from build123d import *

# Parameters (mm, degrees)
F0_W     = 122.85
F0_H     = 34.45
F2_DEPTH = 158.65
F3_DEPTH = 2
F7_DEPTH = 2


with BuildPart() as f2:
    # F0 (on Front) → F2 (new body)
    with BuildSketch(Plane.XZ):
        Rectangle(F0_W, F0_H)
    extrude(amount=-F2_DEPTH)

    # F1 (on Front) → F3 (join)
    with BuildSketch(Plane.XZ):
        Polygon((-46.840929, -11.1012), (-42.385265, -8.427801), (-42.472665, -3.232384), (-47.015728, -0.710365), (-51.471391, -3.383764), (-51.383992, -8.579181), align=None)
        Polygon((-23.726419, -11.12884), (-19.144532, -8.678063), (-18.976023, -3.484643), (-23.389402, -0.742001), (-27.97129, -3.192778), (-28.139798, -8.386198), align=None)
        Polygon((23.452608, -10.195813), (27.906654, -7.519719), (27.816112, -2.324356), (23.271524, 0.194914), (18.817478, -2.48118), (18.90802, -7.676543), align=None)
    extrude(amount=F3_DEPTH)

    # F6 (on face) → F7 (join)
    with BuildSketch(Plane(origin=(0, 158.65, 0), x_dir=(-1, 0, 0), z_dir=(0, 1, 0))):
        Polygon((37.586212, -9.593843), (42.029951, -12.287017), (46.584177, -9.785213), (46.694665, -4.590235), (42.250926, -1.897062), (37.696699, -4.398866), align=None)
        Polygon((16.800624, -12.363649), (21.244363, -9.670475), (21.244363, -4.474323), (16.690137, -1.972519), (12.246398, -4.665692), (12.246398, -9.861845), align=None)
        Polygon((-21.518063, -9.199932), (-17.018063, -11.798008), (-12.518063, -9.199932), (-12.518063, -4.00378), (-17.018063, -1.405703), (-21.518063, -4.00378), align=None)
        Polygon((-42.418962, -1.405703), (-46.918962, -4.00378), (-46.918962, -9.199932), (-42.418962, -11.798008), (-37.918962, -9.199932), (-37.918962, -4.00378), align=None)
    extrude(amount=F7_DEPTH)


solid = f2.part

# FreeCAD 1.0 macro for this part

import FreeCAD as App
import Part
import Sketcher

V = App.Vector
Q = App.Units.Quantity

doc = App.newDocument("Part")
params = doc.addObject("Spreadsheet::Sheet", "Params")
for row, (alias, value) in enumerate([
    ("sketch1_width", "122.85 mm"),
    ("sketch1_height", "34.45 mm"),
    ("pad1_length", "158.65 mm"),
    ("pad2_length", "2 mm"),
    ("pad3_length", "2 mm"),
], start=1):
    params.set(f"A{row}", alias)
    params.set(f"B{row}", "=" + value)
    params.setAlias(f"B{row}", alias)

body = doc.addObject("PartDesign::Body", "Body")

sketch1 = body.newObject("Sketcher::SketchObject", "Sketch")
sketch1.AttachmentSupport = (doc.getObject("XZ_Plane"), [""])
sketch1.MapMode = "FlatFace"
sketch1.addGeometry(Part.LineSegment(V(-61, 17, 0), V(-61, -17, 0)), False)
sketch1.addGeometry(Part.LineSegment(V(-61, -17, 0), V(61, -17, 0)), False)
sketch1.addGeometry(Part.LineSegment(V(61, -17, 0), V(61, 17, 0)), False)
sketch1.addGeometry(Part.LineSegment(V(61, 17, 0), V(-61, 17, 0)), False)
sketch1.addConstraint(Sketcher.Constraint("Coincident", 0, 2, 1, 1))
sketch1.addConstraint(Sketcher.Constraint("Coincident", 1, 2, 2, 1))
sketch1.addConstraint(Sketcher.Constraint("Coincident", 2, 2, 3, 1))
sketch1.addConstraint(Sketcher.Constraint("Coincident", 3, 2, 0, 1))
sketch1.addConstraint(Sketcher.Constraint("Vertical", 0))
sketch1.addConstraint(Sketcher.Constraint("Horizontal", 1))
sketch1.addConstraint(Sketcher.Constraint("Vertical", 2))
sketch1.addConstraint(Sketcher.Constraint("Horizontal", 3))
sketch1.addConstraint(Sketcher.Constraint("Symmetric", 0, 2, 2, 2, -1, 1))
sketch1.addConstraint(Sketcher.Constraint("DistanceX", 1, 1, 1, 2, Q("122.85 mm")))
sketch1.addConstraint(Sketcher.Constraint("DistanceY", 0, 2, 0, 1, Q("34.45 mm")))
sketch1.setExpression("Constraints[9]", "Params.sketch1_width")
sketch1.setExpression("Constraints[10]", "Params.sketch1_height")
pad1 = body.newObject("PartDesign::Pad", "Pad")
pad1.Profile = sketch1
pad1.setExpression("Length", "Params.pad1_length")
pad1.Reversed = True

sketch2 = body.newObject("Sketcher::SketchObject", "Sketch001")
sketch2.AttachmentSupport = (doc.getObject("XZ_Plane"), [""])
sketch2.MapMode = "FlatFace"
sketch2.addGeometry(Part.LineSegment(V(-47, -11, 0), V(-42, -8, 0)), False)
sketch2.addGeometry(Part.LineSegment(V(-42, -8, 0), V(-42, -3, 0)), False)
sketch2.addGeometry(Part.LineSegment(V(-42, -3, 0), V(-47, -1, 0)), False)
sketch2.addGeometry(Part.LineSegment(V(-47, -1, 0), V(-51, -3, 0)), False)
sketch2.addGeometry(Part.LineSegment(V(-51, -3, 0), V(-51, -9, 0)), False)
sketch2.addGeometry(Part.LineSegment(V(-51, -9, 0), V(-47, -11, 0)), False)
sketch2.addGeometry(Part.LineSegment(V(-24, -11, 0), V(-19, -9, 0)), False)
sketch2.addGeometry(Part.LineSegment(V(-19, -9, 0), V(-19, -3, 0)), False)
sketch2.addGeometry(Part.LineSegment(V(-19, -3, 0), V(-23, -1, 0)), False)
sketch2.addGeometry(Part.LineSegment(V(-23, -1, 0), V(-28, -3, 0)), False)
sketch2.addGeometry(Part.LineSegment(V(-28, -3, 0), V(-28, -8, 0)), False)
sketch2.addGeometry(Part.LineSegment(V(-28, -8, 0), V(-24, -11, 0)), False)
sketch2.addGeometry(Part.LineSegment(V(23, -10, 0), V(28, -8, 0)), False)
sketch2.addGeometry(Part.LineSegment(V(28, -8, 0), V(28, -2, 0)), False)
sketch2.addGeometry(Part.LineSegment(V(28, -2, 0), V(23, 0, 0)), False)
sketch2.addGeometry(Part.LineSegment(V(23, 0, 0), V(19, -2, 0)), False)
sketch2.addGeometry(Part.LineSegment(V(19, -2, 0), V(19, -8, 0)), False)
sketch2.addGeometry(Part.LineSegment(V(19, -8, 0), V(23, -10, 0)), False)
sketch2.addConstraint(Sketcher.Constraint("Coincident", 0, 2, 1, 1))
sketch2.addConstraint(Sketcher.Constraint("Coincident", 1, 2, 2, 1))
sketch2.addConstraint(Sketcher.Constraint("Coincident", 2, 2, 3, 1))
sketch2.addConstraint(Sketcher.Constraint("Coincident", 3, 2, 4, 1))
sketch2.addConstraint(Sketcher.Constraint("Coincident", 4, 2, 5, 1))
sketch2.addConstraint(Sketcher.Constraint("Coincident", 5, 2, 0, 1))
sketch2.addConstraint(Sketcher.Constraint("Coincident", 6, 2, 7, 1))
sketch2.addConstraint(Sketcher.Constraint("Coincident", 7, 2, 8, 1))
sketch2.addConstraint(Sketcher.Constraint("Coincident", 8, 2, 9, 1))
sketch2.addConstraint(Sketcher.Constraint("Coincident", 9, 2, 10, 1))
sketch2.addConstraint(Sketcher.Constraint("Coincident", 10, 2, 11, 1))
sketch2.addConstraint(Sketcher.Constraint("Coincident", 11, 2, 6, 1))
sketch2.addConstraint(Sketcher.Constraint("Coincident", 12, 2, 13, 1))
sketch2.addConstraint(Sketcher.Constraint("Coincident", 13, 2, 14, 1))
sketch2.addConstraint(Sketcher.Constraint("Coincident", 14, 2, 15, 1))
sketch2.addConstraint(Sketcher.Constraint("Coincident", 15, 2, 16, 1))
sketch2.addConstraint(Sketcher.Constraint("Coincident", 16, 2, 17, 1))
sketch2.addConstraint(Sketcher.Constraint("Coincident", 17, 2, 12, 1))
sketch2.addConstraint(Sketcher.Constraint("Parallel", 0, 3))
sketch2.addConstraint(Sketcher.Constraint("Parallel", 1, 4))
sketch2.addConstraint(Sketcher.Constraint("Parallel", 2, 5))
sketch2.addConstraint(Sketcher.Constraint("Parallel", 6, 9))
sketch2.addConstraint(Sketcher.Constraint("Parallel", 7, 10))
sketch2.addConstraint(Sketcher.Constraint("Parallel", 8, 11))
sketch2.addConstraint(Sketcher.Constraint("Parallel", 12, 15))
sketch2.addConstraint(Sketcher.Constraint("Parallel", 13, 16))
sketch2.addConstraint(Sketcher.Constraint("Parallel", 14, 17))
sketch2.addConstraint(Sketcher.Constraint("Equal", 0, 1))
sketch2.addConstraint(Sketcher.Constraint("Equal", 1, 2))
sketch2.addConstraint(Sketcher.Constraint("Equal", 2, 3))
sketch2.addConstraint(Sketcher.Constraint("Equal", 5, 6))
sketch2.addConstraint(Sketcher.Constraint("Equal", 6, 7))
sketch2.addConstraint(Sketcher.Constraint("Equal", 7, 8))
sketch2.addConstraint(Sketcher.Constraint("Equal", 8, 9))
sketch2.addConstraint(Sketcher.Constraint("Equal", 11, 12))
sketch2.addConstraint(Sketcher.Constraint("Equal", 12, 13))
sketch2.addConstraint(Sketcher.Constraint("Equal", 13, 14))
sketch2.addConstraint(Sketcher.Constraint("Equal", 14, 15))
sketch2.addConstraint(Sketcher.Constraint("DistanceY", 8, 2, -1, 1, Q("0.742001 mm")))
sketch2.addConstraint(Sketcher.Constraint("DistanceY", 0, 2, -1, 1, Q("8.427801 mm")))
sketch2.addConstraint(Sketcher.Constraint("DistanceY", 5, 2, -1, 1, Q("11.1012 mm")))
sketch2.addConstraint(Sketcher.Constraint("DistanceX", 1, 2, 0, 2, Q("0.0874 mm")))
sketch2.addConstraint(Sketcher.Constraint("DistanceX", 2, 2, 5, 2, Q("0.174799 mm")))
sketch2.addConstraint(Sketcher.Constraint("DistanceX", 7, 2, 15, 2, Q("37.793501 mm")))
sketch2.addConstraint(Sketcher.Constraint("Distance", 3, Q("5.196152 mm")))
sketch2.addConstraint(Sketcher.Constraint("DistanceX", 2, 2, -1, 1, Q("47.015728 mm")))
sketch2.addConstraint(Sketcher.Constraint("DistanceX", 9, 2, -1, 1, Q("27.97129 mm")))
sketch2.addConstraint(Sketcher.Constraint("DistanceY", 9, 2, -1, 1, Q("3.192778 mm")))
sketch2.addConstraint(Sketcher.Constraint("DistanceX", 11, 2, -1, 1, Q("23.726419 mm")))
sketch2.addConstraint(Sketcher.Constraint("DistanceY", 11, 2, -1, 1, Q("11.12884 mm")))
sketch2.addConstraint(Sketcher.Constraint("DistanceY", 12, 2, -1, 1, Q("7.519719 mm")))
sketch2.addConstraint(Sketcher.Constraint("DistanceY", 15, 2, -1, 1, Q("2.48118 mm")))
sketch2.addConstraint(Sketcher.Constraint("DistanceX", -1, 1, 16, 2, Q("18.90802 mm")))
sketch2.addConstraint(Sketcher.Constraint("DistanceX", -1, 1, 17, 2, Q("23.452608 mm")))
pad2 = body.newObject("PartDesign::Pad", "Pad001")
pad2.Profile = sketch2
pad2.setExpression("Length", "Params.pad2_length")

sketch3 = body.newObject("Sketcher::SketchObject", "Sketch002")
sketch3.AttachmentSupport = (doc.getObject("XZ_Plane"), [""])
sketch3.MapMode = "FlatFace"
sketch3.AttachmentOffset = App.Placement(V(0, 0, -158.65), App.Rotation())
sketch3.addGeometry(Part.LineSegment(V(-38, -10, 0), V(-42, -12, 0)), False)
sketch3.addGeometry(Part.LineSegment(V(-42, -12, 0), V(-47, -10, 0)), False)
sketch3.addGeometry(Part.LineSegment(V(-47, -10, 0), V(-47, -5, 0)), False)
sketch3.addGeometry(Part.LineSegment(V(-47, -5, 0), V(-42, -2, 0)), False)
sketch3.addGeometry(Part.LineSegment(V(-42, -2, 0), V(-38, -4, 0)), False)
sketch3.addGeometry(Part.LineSegment(V(-38, -4, 0), V(-38, -10, 0)), False)
sketch3.addGeometry(Part.LineSegment(V(-17, -12, 0), V(-21, -10, 0)), False)
sketch3.addGeometry(Part.LineSegment(V(-21, -10, 0), V(-21, -4, 0)), False)
sketch3.addGeometry(Part.LineSegment(V(-21, -4, 0), V(-17, -2, 0)), False)
sketch3.addGeometry(Part.LineSegment(V(-17, -2, 0), V(-12, -5, 0)), False)
sketch3.addGeometry(Part.LineSegment(V(-12, -5, 0), V(-12, -10, 0)), False)
sketch3.addGeometry(Part.LineSegment(V(-12, -10, 0), V(-17, -12, 0)), False)
sketch3.addGeometry(Part.LineSegment(V(22, -9, 0), V(17, -12, 0)), False)
sketch3.addGeometry(Part.LineSegment(V(17, -12, 0), V(13, -9, 0)), False)
sketch3.addGeometry(Part.LineSegment(V(13, -9, 0), V(13, -4, 0)), False)
sketch3.addGeometry(Part.LineSegment(V(13, -4, 0), V(17, -1, 0)), False)
sketch3.addGeometry(Part.LineSegment(V(17, -1, 0), V(22, -4, 0)), False)
sketch3.addGeometry(Part.LineSegment(V(22, -4, 0), V(22, -9, 0)), False)
sketch3.addGeometry(Part.LineSegment(V(42, -1, 0), V(47, -4, 0)), False)
sketch3.addGeometry(Part.LineSegment(V(47, -4, 0), V(47, -9, 0)), False)
sketch3.addGeometry(Part.LineSegment(V(47, -9, 0), V(42, -12, 0)), False)
sketch3.addGeometry(Part.LineSegment(V(42, -12, 0), V(38, -9, 0)), False)
sketch3.addGeometry(Part.LineSegment(V(38, -9, 0), V(38, -4, 0)), False)
sketch3.addGeometry(Part.LineSegment(V(38, -4, 0), V(42, -1, 0)), False)
sketch3.addConstraint(Sketcher.Constraint("Coincident", 0, 2, 1, 1))
sketch3.addConstraint(Sketcher.Constraint("Coincident", 1, 2, 2, 1))
sketch3.addConstraint(Sketcher.Constraint("Coincident", 2, 2, 3, 1))
sketch3.addConstraint(Sketcher.Constraint("Coincident", 3, 2, 4, 1))
sketch3.addConstraint(Sketcher.Constraint("Coincident", 4, 2, 5, 1))
sketch3.addConstraint(Sketcher.Constraint("Coincident", 5, 2, 0, 1))
sketch3.addConstraint(Sketcher.Constraint("Coincident", 6, 2, 7, 1))
sketch3.addConstraint(Sketcher.Constraint("Coincident", 7, 2, 8, 1))
sketch3.addConstraint(Sketcher.Constraint("Coincident", 8, 2, 9, 1))
sketch3.addConstraint(Sketcher.Constraint("Coincident", 9, 2, 10, 1))
sketch3.addConstraint(Sketcher.Constraint("Coincident", 10, 2, 11, 1))
sketch3.addConstraint(Sketcher.Constraint("Coincident", 11, 2, 6, 1))
sketch3.addConstraint(Sketcher.Constraint("Coincident", 12, 2, 13, 1))
sketch3.addConstraint(Sketcher.Constraint("Coincident", 13, 2, 14, 1))
sketch3.addConstraint(Sketcher.Constraint("Coincident", 14, 2, 15, 1))
sketch3.addConstraint(Sketcher.Constraint("Coincident", 15, 2, 16, 1))
sketch3.addConstraint(Sketcher.Constraint("Coincident", 16, 2, 17, 1))
sketch3.addConstraint(Sketcher.Constraint("Coincident", 17, 2, 12, 1))
sketch3.addConstraint(Sketcher.Constraint("Coincident", 18, 2, 19, 1))
sketch3.addConstraint(Sketcher.Constraint("Coincident", 19, 2, 20, 1))
sketch3.addConstraint(Sketcher.Constraint("Coincident", 20, 2, 21, 1))
sketch3.addConstraint(Sketcher.Constraint("Coincident", 21, 2, 22, 1))
sketch3.addConstraint(Sketcher.Constraint("Coincident", 22, 2, 23, 1))
sketch3.addConstraint(Sketcher.Constraint("Coincident", 23, 2, 18, 1))
sketch3.addConstraint(Sketcher.Constraint("Vertical", 7))
sketch3.addConstraint(Sketcher.Constraint("Vertical", 10))
sketch3.addConstraint(Sketcher.Constraint("Vertical", 14))
sketch3.addConstraint(Sketcher.Constraint("Vertical", 17))
sketch3.addConstraint(Sketcher.Constraint("Vertical", 19))
sketch3.addConstraint(Sketcher.Constraint("Vertical", 22))
sketch3.addConstraint(Sketcher.Constraint("Parallel", 0, 3))
sketch3.addConstraint(Sketcher.Constraint("Parallel", 1, 4))
sketch3.addConstraint(Sketcher.Constraint("Parallel", 2, 5))
sketch3.addConstraint(Sketcher.Constraint("Parallel", 6, 9))
sketch3.addConstraint(Sketcher.Constraint("Parallel", 8, 11))
sketch3.addConstraint(Sketcher.Constraint("Parallel", 12, 15))
sketch3.addConstraint(Sketcher.Constraint("Parallel", 13, 16))
sketch3.addConstraint(Sketcher.Constraint("Parallel", 16, 18))
sketch3.addConstraint(Sketcher.Constraint("Parallel", 15, 20))
sketch3.addConstraint(Sketcher.Constraint("Parallel", 18, 21))
sketch3.addConstraint(Sketcher.Constraint("Parallel", 20, 23))
sketch3.addConstraint(Sketcher.Constraint("Horizontal", 14, 2, 16, 2))
sketch3.addConstraint(Sketcher.Constraint("Horizontal", 13, 2, 17, 2))
sketch3.addConstraint(Sketcher.Constraint("Horizontal", 16, 2, 18, 2))
sketch3.addConstraint(Sketcher.Constraint("Horizontal", 17, 2, 19, 2))
sketch3.addConstraint(Sketcher.Constraint("Horizontal", 12, 2, 20, 2))
sketch3.addConstraint(Sketcher.Constraint("Horizontal", 19, 2, 21, 2))
sketch3.addConstraint(Sketcher.Constraint("Horizontal", 18, 2, 22, 2))
sketch3.addConstraint(Sketcher.Constraint("Vertical", 12, 2, 15, 2))
sketch3.addConstraint(Sketcher.Constraint("Equal", 7, 10))
sketch3.addConstraint(Sketcher.Constraint("Equal", 10, 14))
sketch3.addConstraint(Sketcher.Constraint("Equal", 0, 1))
sketch3.addConstraint(Sketcher.Constraint("Equal", 1, 2))
sketch3.addConstraint(Sketcher.Constraint("Equal", 2, 3))
sketch3.addConstraint(Sketcher.Constraint("Equal", 5, 6))
sketch3.addConstraint(Sketcher.Constraint("Equal", 6, 8))
sketch3.addConstraint(Sketcher.Constraint("Equal", 11, 12))
sketch3.addConstraint(Sketcher.Constraint("Angle", 12, Q("-150.000002 deg")))
sketch3.addConstraint(Sketcher.Constraint("DistanceX", 14, 2, 16, 2, Q("9 mm")))
sketch3.addConstraint(Sketcher.Constraint("DistanceY", 7, 1, 7, 2, Q("5.196152 mm")))
sketch3.addConstraint(Sketcher.Constraint("DistanceX", 4, 2, -1, 1, Q("37.696699 mm")))
sketch3.addConstraint(Sketcher.Constraint("DistanceX", 4, 2, 9, 2, Q("25.450301 mm")))
sketch3.addConstraint(Sketcher.Constraint("DistanceX", 8, 2, 12, 2, Q("33.7082 mm")))
sketch3.addConstraint(Sketcher.Constraint("DistanceX", 16, 2, 18, 2, Q("25.400899 mm")))
sketch3.addConstraint(Sketcher.Constraint("DistanceX", 0, 2, -1, 1, Q("42.029951 mm")))
sketch3.addConstraint(Sketcher.Constraint("DistanceY", 8, 2, -1, 1, Q("1.972519 mm")))
sketch3.addConstraint(Sketcher.Constraint("DistanceY", 11, 2, -1, 1, Q("12.363649 mm")))
sketch3.addConstraint(Sketcher.Constraint("DistanceY", 14, 2, -1, 1, Q("4.00378 mm")))
sketch3.addConstraint(Sketcher.Constraint("DistanceX", 2, 2, 1, 2, Q("0.110488 mm")))
sketch3.addConstraint(Sketcher.Constraint("DistanceY", 2, 2, 4, 2, Q("0.191369 mm")))
sketch3.addConstraint(Sketcher.Constraint("DistanceX", 5, 2, 6, 2, Q("16.341849 mm")))
sketch3.addConstraint(Sketcher.Constraint("DistanceY", 6, 2, 4, 2, Q("5.271609 mm")))
pad3 = body.newObject("PartDesign::Pad", "Pad002")
pad3.Profile = sketch3
pad3.setExpression("Length", "Params.pad3_length")
pad3.Reversed = True

doc.recompute()
